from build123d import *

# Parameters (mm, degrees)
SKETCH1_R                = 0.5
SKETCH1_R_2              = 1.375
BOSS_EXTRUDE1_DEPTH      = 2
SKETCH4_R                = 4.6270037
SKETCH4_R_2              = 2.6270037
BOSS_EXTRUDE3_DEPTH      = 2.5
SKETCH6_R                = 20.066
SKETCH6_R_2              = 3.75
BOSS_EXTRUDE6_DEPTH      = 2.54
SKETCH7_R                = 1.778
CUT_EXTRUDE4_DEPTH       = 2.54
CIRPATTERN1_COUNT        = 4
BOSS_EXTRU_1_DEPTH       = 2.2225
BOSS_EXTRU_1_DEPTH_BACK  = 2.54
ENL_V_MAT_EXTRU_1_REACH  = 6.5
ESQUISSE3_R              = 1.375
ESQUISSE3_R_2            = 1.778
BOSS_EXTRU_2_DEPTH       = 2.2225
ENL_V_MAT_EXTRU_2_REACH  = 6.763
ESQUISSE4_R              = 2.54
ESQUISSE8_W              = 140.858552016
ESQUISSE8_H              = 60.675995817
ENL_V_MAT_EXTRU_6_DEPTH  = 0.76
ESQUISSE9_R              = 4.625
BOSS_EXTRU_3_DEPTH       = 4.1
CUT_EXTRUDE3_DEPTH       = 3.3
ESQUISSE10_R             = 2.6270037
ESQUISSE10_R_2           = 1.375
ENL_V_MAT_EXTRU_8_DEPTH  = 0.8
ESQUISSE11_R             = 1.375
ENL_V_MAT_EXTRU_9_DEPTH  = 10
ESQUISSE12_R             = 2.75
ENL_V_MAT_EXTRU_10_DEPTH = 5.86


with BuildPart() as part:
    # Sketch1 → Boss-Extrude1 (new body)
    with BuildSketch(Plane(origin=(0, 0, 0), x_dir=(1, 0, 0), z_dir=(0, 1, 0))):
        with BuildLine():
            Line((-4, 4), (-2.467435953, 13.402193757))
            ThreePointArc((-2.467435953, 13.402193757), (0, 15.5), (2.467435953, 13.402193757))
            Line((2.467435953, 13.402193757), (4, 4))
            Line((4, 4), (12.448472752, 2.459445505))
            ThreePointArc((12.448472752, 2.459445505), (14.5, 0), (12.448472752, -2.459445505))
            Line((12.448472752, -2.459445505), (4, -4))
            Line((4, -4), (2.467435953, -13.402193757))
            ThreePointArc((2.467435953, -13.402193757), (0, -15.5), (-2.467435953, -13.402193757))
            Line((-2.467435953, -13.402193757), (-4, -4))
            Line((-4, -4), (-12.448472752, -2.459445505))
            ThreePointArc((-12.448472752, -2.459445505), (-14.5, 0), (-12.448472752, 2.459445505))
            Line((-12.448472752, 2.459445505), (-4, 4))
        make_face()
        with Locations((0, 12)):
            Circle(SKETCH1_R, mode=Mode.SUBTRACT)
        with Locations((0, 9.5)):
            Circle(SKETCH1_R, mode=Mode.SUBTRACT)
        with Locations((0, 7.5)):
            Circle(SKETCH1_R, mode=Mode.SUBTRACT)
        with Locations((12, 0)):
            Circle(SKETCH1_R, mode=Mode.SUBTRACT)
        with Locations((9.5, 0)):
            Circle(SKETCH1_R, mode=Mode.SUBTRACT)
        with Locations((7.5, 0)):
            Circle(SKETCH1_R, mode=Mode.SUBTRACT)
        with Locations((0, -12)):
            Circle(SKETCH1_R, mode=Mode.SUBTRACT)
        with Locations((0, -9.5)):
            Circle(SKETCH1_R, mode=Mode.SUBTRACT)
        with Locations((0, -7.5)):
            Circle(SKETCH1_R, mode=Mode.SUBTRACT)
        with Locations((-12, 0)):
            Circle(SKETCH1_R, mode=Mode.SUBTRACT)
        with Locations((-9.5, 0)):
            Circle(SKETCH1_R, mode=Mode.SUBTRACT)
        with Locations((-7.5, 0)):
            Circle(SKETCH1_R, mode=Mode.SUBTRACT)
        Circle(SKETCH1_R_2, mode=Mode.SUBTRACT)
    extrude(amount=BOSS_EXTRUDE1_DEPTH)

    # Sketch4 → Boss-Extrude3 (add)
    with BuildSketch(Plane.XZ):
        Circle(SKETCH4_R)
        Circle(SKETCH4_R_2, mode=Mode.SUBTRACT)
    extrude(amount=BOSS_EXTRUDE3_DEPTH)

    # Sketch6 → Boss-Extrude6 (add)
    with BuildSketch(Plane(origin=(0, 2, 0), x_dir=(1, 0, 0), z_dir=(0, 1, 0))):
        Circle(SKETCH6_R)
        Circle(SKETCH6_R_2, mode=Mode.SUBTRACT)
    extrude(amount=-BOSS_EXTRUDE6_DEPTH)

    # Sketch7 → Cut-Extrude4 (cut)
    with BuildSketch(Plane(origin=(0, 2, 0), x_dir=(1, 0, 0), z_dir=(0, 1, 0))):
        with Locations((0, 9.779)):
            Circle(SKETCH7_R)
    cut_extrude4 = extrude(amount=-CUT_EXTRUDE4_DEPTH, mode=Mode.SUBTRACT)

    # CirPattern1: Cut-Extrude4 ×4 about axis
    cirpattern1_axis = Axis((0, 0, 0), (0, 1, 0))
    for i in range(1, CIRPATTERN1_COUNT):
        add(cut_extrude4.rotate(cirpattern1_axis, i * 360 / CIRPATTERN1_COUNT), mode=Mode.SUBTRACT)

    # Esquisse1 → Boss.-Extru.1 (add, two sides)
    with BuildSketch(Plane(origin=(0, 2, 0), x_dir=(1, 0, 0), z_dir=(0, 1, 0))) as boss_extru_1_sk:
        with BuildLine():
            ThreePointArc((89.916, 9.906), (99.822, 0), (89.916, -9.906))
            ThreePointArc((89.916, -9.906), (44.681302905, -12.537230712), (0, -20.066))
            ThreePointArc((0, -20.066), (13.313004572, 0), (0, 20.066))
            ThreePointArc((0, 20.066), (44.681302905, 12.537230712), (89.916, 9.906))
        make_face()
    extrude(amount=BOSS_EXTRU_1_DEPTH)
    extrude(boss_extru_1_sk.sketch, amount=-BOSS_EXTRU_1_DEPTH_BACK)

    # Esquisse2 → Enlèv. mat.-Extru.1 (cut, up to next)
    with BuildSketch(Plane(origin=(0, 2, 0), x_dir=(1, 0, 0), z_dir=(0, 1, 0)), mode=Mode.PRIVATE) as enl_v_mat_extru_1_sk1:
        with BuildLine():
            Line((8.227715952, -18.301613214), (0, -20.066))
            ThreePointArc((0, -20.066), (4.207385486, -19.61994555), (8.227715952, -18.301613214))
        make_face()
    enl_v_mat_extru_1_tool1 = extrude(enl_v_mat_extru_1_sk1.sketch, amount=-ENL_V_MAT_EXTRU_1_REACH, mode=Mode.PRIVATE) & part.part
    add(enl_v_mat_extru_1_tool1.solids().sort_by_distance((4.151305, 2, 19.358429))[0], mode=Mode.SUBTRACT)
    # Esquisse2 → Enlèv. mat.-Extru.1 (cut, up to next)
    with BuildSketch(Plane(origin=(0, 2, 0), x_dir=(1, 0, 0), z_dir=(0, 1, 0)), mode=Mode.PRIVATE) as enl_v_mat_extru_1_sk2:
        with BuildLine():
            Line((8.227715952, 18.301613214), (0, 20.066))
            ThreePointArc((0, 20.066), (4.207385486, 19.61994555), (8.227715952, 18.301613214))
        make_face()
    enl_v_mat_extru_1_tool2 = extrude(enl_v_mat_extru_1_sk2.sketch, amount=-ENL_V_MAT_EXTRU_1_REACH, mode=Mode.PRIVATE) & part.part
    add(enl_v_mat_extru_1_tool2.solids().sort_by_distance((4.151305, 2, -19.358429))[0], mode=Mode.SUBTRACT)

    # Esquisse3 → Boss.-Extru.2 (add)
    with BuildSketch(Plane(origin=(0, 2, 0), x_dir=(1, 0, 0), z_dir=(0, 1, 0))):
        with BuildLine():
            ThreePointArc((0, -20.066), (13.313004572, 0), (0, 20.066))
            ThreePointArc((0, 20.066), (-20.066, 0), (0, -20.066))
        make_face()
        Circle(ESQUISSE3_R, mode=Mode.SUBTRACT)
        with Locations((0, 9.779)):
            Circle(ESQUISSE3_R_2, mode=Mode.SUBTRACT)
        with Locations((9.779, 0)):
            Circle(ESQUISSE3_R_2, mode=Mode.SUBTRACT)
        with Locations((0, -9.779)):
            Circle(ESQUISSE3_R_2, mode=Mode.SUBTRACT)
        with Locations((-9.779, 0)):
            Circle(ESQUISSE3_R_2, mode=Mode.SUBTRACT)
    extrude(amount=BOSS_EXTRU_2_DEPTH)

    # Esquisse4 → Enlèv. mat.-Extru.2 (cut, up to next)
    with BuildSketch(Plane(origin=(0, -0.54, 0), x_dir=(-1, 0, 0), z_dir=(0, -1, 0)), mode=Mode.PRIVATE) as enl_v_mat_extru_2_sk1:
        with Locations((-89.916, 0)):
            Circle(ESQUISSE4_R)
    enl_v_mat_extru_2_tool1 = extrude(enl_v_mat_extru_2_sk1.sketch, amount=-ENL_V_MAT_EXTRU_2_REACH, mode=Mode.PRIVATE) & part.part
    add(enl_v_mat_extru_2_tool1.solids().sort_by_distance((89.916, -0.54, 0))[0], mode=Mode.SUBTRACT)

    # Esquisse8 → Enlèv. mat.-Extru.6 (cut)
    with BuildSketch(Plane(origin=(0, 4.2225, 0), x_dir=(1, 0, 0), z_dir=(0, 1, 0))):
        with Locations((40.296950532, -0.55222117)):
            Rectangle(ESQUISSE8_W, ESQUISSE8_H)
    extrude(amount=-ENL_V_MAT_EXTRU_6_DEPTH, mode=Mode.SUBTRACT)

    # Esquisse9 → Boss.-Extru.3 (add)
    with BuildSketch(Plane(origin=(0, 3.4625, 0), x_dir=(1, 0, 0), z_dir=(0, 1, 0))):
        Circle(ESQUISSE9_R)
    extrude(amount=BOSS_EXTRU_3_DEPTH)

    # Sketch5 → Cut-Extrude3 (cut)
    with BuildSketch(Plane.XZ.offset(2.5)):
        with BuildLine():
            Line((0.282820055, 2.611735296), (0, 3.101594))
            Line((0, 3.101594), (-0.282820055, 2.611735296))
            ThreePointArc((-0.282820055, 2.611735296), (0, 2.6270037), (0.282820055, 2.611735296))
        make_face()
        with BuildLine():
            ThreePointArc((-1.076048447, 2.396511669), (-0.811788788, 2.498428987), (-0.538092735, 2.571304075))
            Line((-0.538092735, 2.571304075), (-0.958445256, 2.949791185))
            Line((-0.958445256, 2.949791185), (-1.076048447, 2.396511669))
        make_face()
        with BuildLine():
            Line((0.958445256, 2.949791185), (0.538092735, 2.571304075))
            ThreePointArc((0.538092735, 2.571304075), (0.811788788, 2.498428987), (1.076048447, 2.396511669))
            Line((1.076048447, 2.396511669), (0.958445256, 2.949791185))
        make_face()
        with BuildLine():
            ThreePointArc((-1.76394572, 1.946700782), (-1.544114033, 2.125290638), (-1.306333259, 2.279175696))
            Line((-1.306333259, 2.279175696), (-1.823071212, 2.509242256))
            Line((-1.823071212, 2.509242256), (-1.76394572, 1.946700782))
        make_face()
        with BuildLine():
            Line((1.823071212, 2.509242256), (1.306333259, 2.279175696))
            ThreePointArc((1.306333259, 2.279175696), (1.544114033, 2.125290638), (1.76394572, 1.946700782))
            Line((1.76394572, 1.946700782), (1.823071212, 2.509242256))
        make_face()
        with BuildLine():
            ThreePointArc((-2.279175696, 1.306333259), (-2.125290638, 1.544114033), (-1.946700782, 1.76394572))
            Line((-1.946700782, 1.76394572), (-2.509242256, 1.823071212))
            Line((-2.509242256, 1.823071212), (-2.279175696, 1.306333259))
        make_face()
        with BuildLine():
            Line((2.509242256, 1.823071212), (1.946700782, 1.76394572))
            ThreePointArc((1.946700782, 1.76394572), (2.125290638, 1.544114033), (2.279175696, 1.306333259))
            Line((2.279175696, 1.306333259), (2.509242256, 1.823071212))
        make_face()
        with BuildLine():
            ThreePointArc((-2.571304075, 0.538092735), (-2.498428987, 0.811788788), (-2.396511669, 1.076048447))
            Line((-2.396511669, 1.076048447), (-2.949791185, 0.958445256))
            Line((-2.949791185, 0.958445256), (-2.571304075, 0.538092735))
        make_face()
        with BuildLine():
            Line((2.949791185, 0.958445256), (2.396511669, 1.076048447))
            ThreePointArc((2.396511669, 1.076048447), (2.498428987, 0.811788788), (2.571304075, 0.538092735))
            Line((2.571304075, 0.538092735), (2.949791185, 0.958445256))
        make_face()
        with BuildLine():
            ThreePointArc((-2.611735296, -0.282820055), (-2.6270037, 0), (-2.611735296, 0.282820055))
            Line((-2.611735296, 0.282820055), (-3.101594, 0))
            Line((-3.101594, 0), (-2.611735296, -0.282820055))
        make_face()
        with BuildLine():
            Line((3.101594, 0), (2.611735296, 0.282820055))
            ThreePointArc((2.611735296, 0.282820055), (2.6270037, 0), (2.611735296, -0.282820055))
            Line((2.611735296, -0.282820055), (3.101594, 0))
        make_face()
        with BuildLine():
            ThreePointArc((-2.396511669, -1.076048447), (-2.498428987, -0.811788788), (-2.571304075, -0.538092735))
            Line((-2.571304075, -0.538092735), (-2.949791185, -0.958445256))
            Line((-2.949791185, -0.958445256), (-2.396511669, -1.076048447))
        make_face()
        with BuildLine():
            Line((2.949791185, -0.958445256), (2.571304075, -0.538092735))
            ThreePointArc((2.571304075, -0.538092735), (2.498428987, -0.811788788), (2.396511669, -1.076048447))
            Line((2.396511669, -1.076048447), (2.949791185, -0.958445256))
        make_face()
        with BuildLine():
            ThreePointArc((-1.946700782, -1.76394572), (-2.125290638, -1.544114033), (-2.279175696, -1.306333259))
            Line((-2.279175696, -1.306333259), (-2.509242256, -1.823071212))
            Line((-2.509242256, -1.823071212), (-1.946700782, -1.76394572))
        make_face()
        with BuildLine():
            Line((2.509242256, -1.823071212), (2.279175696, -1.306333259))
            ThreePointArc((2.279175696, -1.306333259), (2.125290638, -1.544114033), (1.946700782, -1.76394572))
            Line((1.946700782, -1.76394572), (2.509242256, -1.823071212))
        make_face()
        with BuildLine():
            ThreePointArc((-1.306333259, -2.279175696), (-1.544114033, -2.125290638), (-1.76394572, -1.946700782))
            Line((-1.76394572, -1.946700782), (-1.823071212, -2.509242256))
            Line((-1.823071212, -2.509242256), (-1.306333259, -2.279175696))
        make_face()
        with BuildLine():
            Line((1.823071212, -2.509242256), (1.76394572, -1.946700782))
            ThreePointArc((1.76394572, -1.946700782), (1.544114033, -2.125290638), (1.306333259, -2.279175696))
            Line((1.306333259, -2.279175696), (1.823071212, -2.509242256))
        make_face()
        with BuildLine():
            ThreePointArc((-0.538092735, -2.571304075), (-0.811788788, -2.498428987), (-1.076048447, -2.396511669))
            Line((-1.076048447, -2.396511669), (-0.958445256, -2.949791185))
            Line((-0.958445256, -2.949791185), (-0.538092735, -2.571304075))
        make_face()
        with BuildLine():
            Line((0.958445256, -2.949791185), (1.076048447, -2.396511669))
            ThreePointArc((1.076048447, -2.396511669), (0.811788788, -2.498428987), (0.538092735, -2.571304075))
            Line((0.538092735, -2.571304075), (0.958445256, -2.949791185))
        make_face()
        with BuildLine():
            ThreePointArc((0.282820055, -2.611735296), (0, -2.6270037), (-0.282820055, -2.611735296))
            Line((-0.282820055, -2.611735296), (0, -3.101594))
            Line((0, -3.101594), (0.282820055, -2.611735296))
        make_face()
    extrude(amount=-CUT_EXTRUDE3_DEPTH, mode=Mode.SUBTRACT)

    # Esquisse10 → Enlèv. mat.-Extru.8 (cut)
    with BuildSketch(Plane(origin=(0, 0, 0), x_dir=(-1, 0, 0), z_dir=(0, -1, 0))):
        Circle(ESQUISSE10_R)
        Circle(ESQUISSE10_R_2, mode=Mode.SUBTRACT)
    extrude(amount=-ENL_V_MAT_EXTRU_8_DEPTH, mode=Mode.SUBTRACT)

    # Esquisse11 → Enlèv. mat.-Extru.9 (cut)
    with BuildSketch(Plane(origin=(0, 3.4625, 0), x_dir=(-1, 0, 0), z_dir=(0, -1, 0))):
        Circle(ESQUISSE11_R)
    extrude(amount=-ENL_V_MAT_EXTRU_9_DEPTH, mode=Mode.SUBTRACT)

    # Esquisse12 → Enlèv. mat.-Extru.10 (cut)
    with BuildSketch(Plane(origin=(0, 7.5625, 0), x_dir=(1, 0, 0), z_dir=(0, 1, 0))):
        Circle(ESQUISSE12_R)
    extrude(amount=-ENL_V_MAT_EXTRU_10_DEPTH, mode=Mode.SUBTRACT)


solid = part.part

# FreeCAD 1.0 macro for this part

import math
import FreeCAD as App
import Part
import Sketcher
Q = App.Units.Quantity

doc = App.newDocument("Part")
body = doc.addObject("PartDesign::Body", "Body")

# Sketch on XZ plane
sketch1 = body.newObject("Sketcher::SketchObject", "Sketch")
sketch1.AttachmentSupport = (doc.getObject("XZ_Plane"), [""])
sketch1.MapMode = "FlatFace"
sketch1.addGeometry([
    Part.LineSegment(App.Vector(-2.467436, -13.402194, 0), App.Vector(-4, -4, 0)),  # 0
    Part.LineSegment(App.Vector(-4, -4, 0), App.Vector(-12.448473, -2.459446, 0)),  # 1
    Part.ArcOfCircle(Part.Circle(App.Vector(-12, 0, 0), App.Vector(0, 0, 1), 2.5), math.radians(100.334179), math.radians(259.665821)),  # 2
    Part.LineSegment(App.Vector(-12.448473, 2.459446, 0), App.Vector(-4, 4, 0)),  # 3
    Part.LineSegment(App.Vector(-4, 4, 0), App.Vector(-2.467436, 13.402194, 0)),  # 4
    Part.ArcOfCircle(Part.Circle(App.Vector(0, 13, 0), App.Vector(0, 0, 1), 2.5), math.radians(9.257833), math.radians(170.742167)),  # 5
    Part.LineSegment(App.Vector(2.467436, 13.402194, 0), App.Vector(4, 4, 0)),  # 6
    Part.LineSegment(App.Vector(4, 4, 0), App.Vector(12.448473, 2.459446, 0)),  # 7
    Part.ArcOfCircle(Part.Circle(App.Vector(12, 0, 0), App.Vector(0, 0, 1), 2.5), math.radians(-79.665821), math.radians(79.665821)),  # 8
    Part.LineSegment(App.Vector(12.448473, -2.459446, 0), App.Vector(4, -4, 0)),  # 9
    Part.LineSegment(App.Vector(4, -4, 0), App.Vector(2.467436, -13.402194, 0)),  # 10
    Part.ArcOfCircle(Part.Circle(App.Vector(0, -13, 0), App.Vector(0, 0, 1), 2.5), math.radians(-170.742167), math.radians(-9.257833)),  # 11
    Part.Circle(App.Vector(0, 12, 0), App.Vector(0, 0, 1), 0.5),  # 12
    Part.Circle(App.Vector(0, 9.5, 0), App.Vector(0, 0, 1), 0.5),  # 13
    Part.Circle(App.Vector(0, 7.5, 0), App.Vector(0, 0, 1), 0.5),  # 14
    Part.Circle(App.Vector(12, 0, 0), App.Vector(0, 0, 1), 0.5),  # 15
    Part.Circle(App.Vector(9.5, 0, 0), App.Vector(0, 0, 1), 0.5),  # 16
    Part.Circle(App.Vector(7.5, 0, 0), App.Vector(0, 0, 1), 0.5),  # 17
    Part.Circle(App.Vector(0, 0, 0), App.Vector(0, 0, 1), 1.375),  # 18
    Part.Circle(App.Vector(-7.5, 0, 0), App.Vector(0, 0, 1), 0.5),  # 19
    Part.Circle(App.Vector(-9.5, 0, 0), App.Vector(0, 0, 1), 0.5),  # 20
    Part.Circle(App.Vector(-12, 0, 0), App.Vector(0, 0, 1), 0.5),  # 21
    Part.Circle(App.Vector(0, -7.5, 0), App.Vector(0, 0, 1), 0.5),  # 22
    Part.Circle(App.Vector(0, -9.5, 0), App.Vector(0, 0, 1), 0.5),  # 23
    Part.Circle(App.Vector(0, -12, 0), App.Vector(0, 0, 1), 0.5),  # 24
], False)
sketch1.addConstraint([
    Sketcher.Constraint("Coincident", 0, 2, 1, 1),
    Sketcher.Constraint("Tangent", 1, 2, 2, 2),
    Sketcher.Constraint("Tangent", 2, 1, 3, 1),
    Sketcher.Constraint("Coincident", 3, 2, 4, 1),
    Sketcher.Constraint("Tangent", 4, 2, 5, 2),
    Sketcher.Constraint("Tangent", 5, 1, 6, 1),
    Sketcher.Constraint("Coincident", 6, 2, 7, 1),
    Sketcher.Constraint("Tangent", 7, 2, 8, 2),
    Sketcher.Constraint("Tangent", 8, 1, 9, 1),
    Sketcher.Constraint("Coincident", 9, 2, 10, 1),
    Sketcher.Constraint("Tangent", 10, 2, 11, 2),
    Sketcher.Constraint("Tangent", 11, 1, 0, 1),
    Sketcher.Constraint("Coincident", 18, 3, -1, 1),
    Sketcher.Constraint("Coincident", 15, 3, 8, 3),
    Sketcher.Constraint("Coincident", 21, 3, 2, 3),
    Sketcher.Constraint("Equal", 2, 5),
    Sketcher.Constraint("Equal", 5, 8),
    Sketcher.Constraint("Equal", 8, 11),
    Sketcher.Constraint("Equal", 12, 13),
    Sketcher.Constraint("Equal", 13, 14),
    Sketcher.Constraint("Equal", 14, 15),
    Sketcher.Constraint("Equal", 15, 16),
    Sketcher.Constraint("Equal", 16, 17),
    Sketcher.Constraint("Equal", 17, 19),
    Sketcher.Constraint("Equal", 19, 20),
    Sketcher.Constraint("Equal", 20, 21),
    Sketcher.Constraint("Equal", 21, 22),
    Sketcher.Constraint("Equal", 22, 23),
    Sketcher.Constraint("Equal", 23, 24),
    Sketcher.Constraint("Symmetric", 2, 3, 8, 3, -1, 1),
    Sketcher.Constraint("Symmetric", 5, 3, 11, 3, -1, 1),
    Sketcher.Constraint("Symmetric", 17, 3, 19, 3, -1, 1),
    Sketcher.Constraint("Symmetric", 16, 3, 20, 3, -1, 1),
    Sketcher.Constraint("Symmetric", 14, 3, 22, 3, -1, 1),
    Sketcher.Constraint("Symmetric", 13, 3, 23, 3, -1, 1),
    Sketcher.Constraint("Symmetric", 12, 3, 24, 3, -1, 1),
    Sketcher.Constraint("Symmetric", 0, 2, 6, 2, -1, 1),
    Sketcher.Constraint("Symmetric", 3, 2, 9, 2, -1, 1),
    Sketcher.Constraint("Symmetric", 4, 2, 5, 1, -2),
    Sketcher.Constraint("Symmetric", 2, 1, 7, 2, -2),
    Sketcher.Constraint("PointOnObject", 12, 3, -2),
    Sketcher.Constraint("PointOnObject", 13, 3, -2),
    Sketcher.Constraint("PointOnObject", 14, 3, -2),
    Sketcher.Constraint("PointOnObject", 16, 3, -1),
    Sketcher.Constraint("PointOnObject", 17, 3, -1),
    Sketcher.Constraint("Diameter", 12, 1.0),
    Sketcher.Constraint("Radius", 2, 2.5),
    Sketcher.Constraint("Diameter", 18, 2.75),
    Sketcher.Constraint("DistanceX", 2, 3, -1, 1, 12.0),
    Sketcher.Constraint("DistanceY", -1, 1, 5, 3, 13.0),
    Sketcher.Constraint("DistanceY", -1, 1, 12, 3, 12.0),
    Sketcher.Constraint("DistanceX", 0, 2, -1, 1, 4.0),
    Sketcher.Constraint("DistanceY", 0, 2, -1, 1, 4.0),
    Sketcher.Constraint("DistanceY", 14, 3, 13, 3, 2.0),
    Sketcher.Constraint("DistanceX", 17, 3, 16, 3, 2.0),
    Sketcher.Constraint("DistanceY", -1, 1, 13, 3, 9.5),
    Sketcher.Constraint("DistanceX", -1, 1, 16, 3, 9.5),
])
pad1 = body.newObject("PartDesign::Pad", "Pad")
pad1.Profile = sketch1
pad1.Length = 2
pad1.Reversed = True

# Sketch on XZ plane
sketch2 = body.newObject("Sketcher::SketchObject", "Sketch001")
sketch2.AttachmentSupport = (doc.getObject("XZ_Plane"), [""])
sketch2.MapMode = "FlatFace"
sketch2.addGeometry([
    Part.Circle(App.Vector(0, 0, 0), App.Vector(0, 0, 1), 4.627004),
    Part.Circle(App.Vector(0, 0, 0), App.Vector(0, 0, 1), 2.627004),
], False)
sketch2.addConstraint([
    Sketcher.Constraint("Coincident", 0, 3, -1, 1),
    Sketcher.Constraint("Coincident", 1, 3, -1, 1),
    Sketcher.Constraint("Diameter", 0, 9.254007),
    Sketcher.Constraint("Diameter", 1, 5.254007),
])
pad2 = body.newObject("PartDesign::Pad", "Pad001")
pad2.Profile = sketch2
pad2.Length = 2.5

# Sketch on XZ plane
sketch3 = body.newObject("Sketcher::SketchObject", "Sketch002")
sketch3.AttachmentSupport = (doc.getObject("XZ_Plane"), [""])
sketch3.MapMode = "FlatFace"
sketch3.AttachmentOffset = App.Placement(App.Vector(0, 0, -2), App.Rotation())
sketch3.addGeometry([
    Part.Circle(App.Vector(0, 0, 0), App.Vector(0, 0, 1), 20.066),
    Part.Circle(App.Vector(0, 0, 0), App.Vector(0, 0, 1), 3.75),
], False)
sketch3.addConstraint([
    Sketcher.Constraint("Coincident", 0, 3, -1, 1),
    Sketcher.Constraint("Coincident", 1, 3, -1, 1),
    Sketcher.Constraint("Diameter", 1, 7.5),
    Sketcher.Constraint("Diameter", 0, 40.132),
])
pad3 = body.newObject("PartDesign::Pad", "Pad002")
pad3.Profile = sketch3
pad3.Length = 2.54

# Sketch on XZ plane
sketch4 = body.newObject("Sketcher::SketchObject", "Sketch003")
sketch4.AttachmentSupport = (doc.getObject("XZ_Plane"), [""])
sketch4.MapMode = "FlatFace"
sketch4.AttachmentOffset = App.Placement(App.Vector(0, 0, -2), App.Rotation())
sketch4.addGeometry(Part.Circle(App.Vector(0, -9.779, 0), App.Vector(0, 0, 1), 1.778), False)
sketch4.addConstraint([
    Sketcher.Constraint("PointOnObject", 0, 3, -2),
    Sketcher.Constraint("Diameter", 0, 3.556),
    Sketcher.Constraint("DistanceY", 0, 3, -1, 1, 9.779),
])
pocket1 = body.newObject("PartDesign::Pocket", "Pocket")
pocket1.Profile = sketch4
pocket1.Length = 2.54
pocket1.Reversed = True
doc.recompute()

polarpattern = body.newObject("PartDesign::PolarPattern", "PolarPattern")
polarpattern.Originals = [pocket1]
polarpattern.Axis = (doc.getObject("Y_Axis"), [""])
polarpattern.Angle = 360
polarpattern.Occurrences = 4
body.Tip = polarpattern

# Sketch on XZ plane
sketch5 = body.newObject("Sketcher::SketchObject", "Sketch004")
sketch5.AttachmentSupport = (doc.getObject("XZ_Plane"), [""])
sketch5.MapMode = "FlatFace"
sketch5.AttachmentOffset = App.Placement(App.Vector(0, 0, -2), App.Rotation())
sketch5.addGeometry([
    Part.ArcOfCircle(Part.Circle(App.Vector(89.916, 0, 0), App.Vector(0, 0, 1), 9.906), math.radians(-90), math.radians(90)),
    Part.ArcOfCircle(Part.Circle(App.Vector(91.452595, -426.463166, 0), App.Vector(0, 0, 1), 416.56), math.radians(90.211352), math.radians(102.682159)),
    Part.ArcOfCircle(Part.Circle(App.Vector(-8.465717, 0, 0), App.Vector(0, 0, 1), 21.778722), math.radians(-67.125429), math.radians(67.125429)),
    Part.ArcOfCircle(Part.Circle(App.Vector(91.452595, 426.463166, 0), App.Vector(0, 0, 1), 416.56), math.radians(-102.682159), math.radians(-90.211352)),
], False)
sketch5.addConstraint([
    Sketcher.Constraint("Coincident", 0, 1, 1, 1),
    Sketcher.Constraint("Coincident", 1, 2, 2, 1),
    Sketcher.Constraint("Coincident", 2, 2, 3, 1),
    Sketcher.Constraint("Coincident", 3, 2, 0, 2),
    Sketcher.Constraint("Equal", 1, 3),
    Sketcher.Constraint("Symmetric", 1, 2, 2, 2, -1, 1),
    Sketcher.Constraint("Symmetric", 1, 3, 3, 3, -1),
    Sketcher.Constraint("PointOnObject", 0, 3, -1),
    Sketcher.Constraint("Radius", 1, 416.56),
    Sketcher.Constraint("Radius", 0, 9.906),
    Sketcher.Constraint("Radius", 2, 21.778722),
    Sketcher.Constraint("DistanceY", 3, 2, 2, 2, 10.16),
    Sketcher.Constraint("DistanceX", -1, 1, 0, 3, 89.916),
    Sketcher.Constraint("DistanceX", -1, 1, 0, 1, 89.916),
])
pad4 = body.newObject("PartDesign::Pad", "Pad003")
pad4.Profile = sketch5
pad4.Type = "TwoLengths"
pad4.Length = 2.2225
pad4.Length2 = 2.54
pad4.Reversed = True

# Sketch on XZ plane
sketch6 = body.newObject("Sketcher::SketchObject", "Sketch005")
sketch6.AttachmentSupport = (doc.getObject("XZ_Plane"), [""])
sketch6.MapMode = "FlatFace"
sketch6.AttachmentOffset = App.Placement(App.Vector(0, 0, -2), App.Rotation())
sketch6.addGeometry([
    Part.LineSegment(App.Vector(8.227716, 18.301613, 0), App.Vector(0, 20.066, 0)),
    Part.ArcOfCircle(Part.Circle(App.Vector(0, 0, 0), App.Vector(0, 0, 1), 20.066), math.radians(65.793112), math.radians(90)),
], False)
sketch6.addConstraint([
    Sketcher.Constraint("Coincident", 0, 1, 1, 1),
    Sketcher.Constraint("Coincident", 1, 2, 0, 2),
    Sketcher.Constraint("Coincident", 1, 3, -1, 1),
    Sketcher.Constraint("PointOnObject", 1, 2, -2),
    Sketcher.Constraint("Radius", 1, 20.066),
    Sketcher.Constraint("Distance", 0, 8.414771),
])
pocket2 = body.newObject("PartDesign::Pocket", "Pocket001")
pocket2.Profile = sketch6
pocket2.Type = "UpToFirst"
pocket2.Reversed = True

# Sketch on XZ plane
sketch7 = body.newObject("Sketcher::SketchObject", "Sketch006")
sketch7.AttachmentSupport = (doc.getObject("XZ_Plane"), [""])
sketch7.MapMode = "FlatFace"
sketch7.AttachmentOffset = App.Placement(App.Vector(0, 0, -2), App.Rotation())
sketch7.addGeometry([
    Part.LineSegment(App.Vector(0, -20.066, 0), App.Vector(8.227716, -18.301613, 0)),
    Part.ArcOfCircle(Part.Circle(App.Vector(0, 0, 0), App.Vector(0, 0, 1), 20.066), math.radians(-90), math.radians(-65.793112)),
], False)
sketch7.addConstraint([
    Sketcher.Constraint("Coincident", 0, 1, 1, 1),
    Sketcher.Constraint("Coincident", 1, 2, 0, 2),
    Sketcher.Constraint("Coincident", 1, 3, -1, 1),
    Sketcher.Constraint("PointOnObject", 0, 1, -2),
    Sketcher.Constraint("Radius", 1, 20.066),
    Sketcher.Constraint("Distance", 0, 8.414771),
])
pocket3 = body.newObject("PartDesign::Pocket", "Pocket002")
pocket3.Profile = sketch7
pocket3.Type = "UpToFirst"
pocket3.Reversed = True

# Sketch on XZ plane
sketch8 = body.newObject("Sketcher::SketchObject", "Sketch007")
sketch8.AttachmentSupport = (doc.getObject("XZ_Plane"), [""])
sketch8.MapMode = "FlatFace"
sketch8.AttachmentOffset = App.Placement(App.Vector(0, 0, -2), App.Rotation())
sketch8.addGeometry([
    Part.ArcOfCircle(Part.Circle(App.Vector(-8.465717, 0, 0), App.Vector(0, 0, 1), 21.778722), math.radians(-67.125429), math.radians(67.125429)),  # 0
    Part.ArcOfCircle(Part.Circle(App.Vector(0, 0, 0), App.Vector(0, 0, 1), 20.066), math.radians(90), math.radians(270)),  # 1
    Part.Circle(App.Vector(0, 9.779, 0), App.Vector(0, 0, 1), 1.778),  # 2
    Part.Circle(App.Vector(-9.779, 0, 0), App.Vector(0, 0, 1), 1.778),  # 3
    Part.Circle(App.Vector(0, 0, 0), App.Vector(0, 0, 1), 1.375),  # 4
    Part.Circle(App.Vector(9.779, 0, 0), App.Vector(0, 0, 1), 1.778),  # 5
    Part.Circle(App.Vector(0, -9.779, 0), App.Vector(0, 0, 1), 1.778),  # 6
], False)
sketch8.addConstraint([
    Sketcher.Constraint("Coincident", 0, 1, 1, 2),
    Sketcher.Constraint("Coincident", 1, 1, 0, 2),
    Sketcher.Constraint("Coincident", 1, 3, -1, 1),
    Sketcher.Constraint("Coincident", 4, 3, -1, 1),
    Sketcher.Constraint("Equal", 2, 3),
    Sketcher.Constraint("Equal", 3, 5),
    Sketcher.Constraint("Equal", 5, 6),
    Sketcher.Constraint("Symmetric", 3, 3, 5, 3, -1, 1),
    Sketcher.Constraint("Symmetric", 2, 3, 6, 3, -1, 1),
    Sketcher.Constraint("PointOnObject", 0, 3, -1),
    Sketcher.Constraint("PointOnObject", 2, 3, -2),
    Sketcher.Constraint("PointOnObject", 3, 3, -1),
    Sketcher.Constraint("PointOnObject", 0, 1, -2),
    Sketcher.Constraint("Diameter", 4, 2.75),
    Sketcher.Constraint("Diameter", 2, 3.556),
    Sketcher.Constraint("Radius", 1, 20.066),
    Sketcher.Constraint("Radius", 0, 21.778722),
    Sketcher.Constraint("DistanceY", -1, 1, 2, 3, 9.779),
    Sketcher.Constraint("DistanceX", 3, 3, -1, 1, 9.779),
])
pad5 = body.newObject("PartDesign::Pad", "Pad004")
pad5.Profile = sketch8
pad5.Length = 2.2225
pad5.Reversed = True

# Sketch on XZ plane
sketch9 = body.newObject("Sketcher::SketchObject", "Sketch008")
sketch9.AttachmentSupport = (doc.getObject("XZ_Plane"), [""])
sketch9.MapMode = "FlatFace"
sketch9.AttachmentOffset = App.Placement(App.Vector(0, 0, 0.54), App.Rotation())
sketch9.addGeometry(Part.Circle(App.Vector(89.916, 0, 0), App.Vector(0, 0, 1), 2.54), False)
sketch9.addConstraint([
    Sketcher.Constraint("PointOnObject", 0, 3, -1),
    Sketcher.Constraint("Diameter", 0, 5.08),
    Sketcher.Constraint("DistanceX", -1, 1, 0, 3, 89.916),
])
pocket4 = body.newObject("PartDesign::Pocket", "Pocket003")
pocket4.Profile = sketch9
pocket4.Type = "UpToFirst"

# Sketch on XZ plane
sketch10 = body.newObject("Sketcher::SketchObject", "Sketch009")
sketch10.AttachmentSupport = (doc.getObject("XZ_Plane"), [""])
sketch10.MapMode = "FlatFace"
sketch10.AttachmentOffset = App.Placement(App.Vector(0, 0, -4.2225), App.Rotation())
sketch10.addGeometry([
    Part.LineSegment(App.Vector(-30.132325, -29.785777, 0), App.Vector(-30.132325, 30.890219, 0)),
    Part.LineSegment(App.Vector(-30.132325, 30.890219, 0), App.Vector(110.726227, 30.890219, 0)),
    Part.LineSegment(App.Vector(110.726227, 30.890219, 0), App.Vector(110.726227, -29.785777, 0)),
    Part.LineSegment(App.Vector(110.726227, -29.785777, 0), App.Vector(-30.132325, -29.785777, 0)),
], False)
sketch10.addConstraint([
    Sketcher.Constraint("Coincident", 0, 2, 1, 1),
    Sketcher.Constraint("Coincident", 1, 2, 2, 1),
    Sketcher.Constraint("Coincident", 2, 2, 3, 1),
    Sketcher.Constraint("Coincident", 3, 2, 0, 1),
    Sketcher.Constraint("Vertical", 0),
    Sketcher.Constraint("Horizontal", 1),
    Sketcher.Constraint("Vertical", 2),
    Sketcher.Constraint("Horizontal", 3),
    Sketcher.Constraint("DistanceX", 1, 1, 1, 2, 140.858552),
    Sketcher.Constraint("DistanceY", 0, 1, 0, 2, 60.675996),
    Sketcher.Constraint("DistanceY", -1, 1, 0, 2, 30.890219),
    Sketcher.Constraint("DistanceX", 0, 2, -1, 1, 30.132325),
])
pocket5 = body.newObject("PartDesign::Pocket", "Pocket004")
pocket5.Profile = sketch10
pocket5.Length = 0.76
pocket5.Reversed = True

# Sketch on XZ plane
sketch11 = body.newObject("Sketcher::SketchObject", "Sketch010")
sketch11.AttachmentSupport = (doc.getObject("XZ_Plane"), [""])
sketch11.MapMode = "FlatFace"
sketch11.AttachmentOffset = App.Placement(App.Vector(0, 0, -3.4625), App.Rotation())
sketch11.addGeometry(Part.Circle(App.Vector(0, 0, 0), App.Vector(0, 0, 1), 4.625), False)
sketch11.addConstraint([
    Sketcher.Constraint("Coincident", 0, 3, -1, 1),
    Sketcher.Constraint("Diameter", 0, 9.25),
])
pad6 = body.newObject("PartDesign::Pad", "Pad005")
pad6.Profile = sketch11
pad6.Length = 4.1
pad6.Reversed = True

# Sketch on XZ plane
sketch12 = body.newObject("Sketcher::SketchObject", "Sketch011")
sketch12.AttachmentSupport = (doc.getObject("XZ_Plane"), [""])
sketch12.MapMode = "FlatFace"
sketch12.AttachmentOffset = App.Placement(App.Vector(0, 0, 2.5), App.Rotation())
sketch12.addGeometry([
    Part.LineSegment(App.Vector(0.28282, 2.611735, 0), App.Vector(0, 3.101594, 0)),  # 0
    Part.LineSegment(App.Vector(0, 3.101594, 0), App.Vector(-0.28282, 2.611735, 0)),  # 1
    Part.ArcOfCircle(Part.Circle(App.Vector(0, 0, 0), App.Vector(0, 0, 1), 2.627004), math.radians(83.819627), math.radians(96.180373)),  # 2
    Part.ArcOfCircle(Part.Circle(App.Vector(0, 0, 0), App.Vector(0, 0, 1), 2.627004), math.radians(101.819627), math.radians(114.180373)),  # 3
    Part.LineSegment(App.Vector(-0.538093, 2.571304, 0), App.Vector(-0.958445, 2.949791, 0)),  # 4
    Part.LineSegment(App.Vector(-0.958445, 2.949791, 0), App.Vector(-1.076048, 2.396512, 0)),  # 5
    Part.LineSegment(App.Vector(0.958445, 2.949791, 0), App.Vector(0.538093, 2.571304, 0)),  # 6
    Part.ArcOfCircle(Part.Circle(App.Vector(0, 0, 0), App.Vector(0, 0, 1), 2.627004), math.radians(65.819627), math.radians(78.180373)),  # 7
    Part.LineSegment(App.Vector(1.076048, 2.396512, 0), App.Vector(0.958445, 2.949791, 0)),  # 8
    Part.ArcOfCircle(Part.Circle(App.Vector(0, 0, 0), App.Vector(0, 0, 1), 2.627004), math.radians(119.819627), math.radians(132.180373)),  # 9
    Part.LineSegment(App.Vector(-1.306333, 2.279176, 0), App.Vector(-1.823071, 2.509242, 0)),  # 10
    Part.LineSegment(App.Vector(-1.823071, 2.509242, 0), App.Vector(-1.763946, 1.946701, 0)),  # 11
    Part.LineSegment(App.Vector(1.823071, 2.509242, 0), App.Vector(1.306333, 2.279176, 0)),  # 12
    Part.ArcOfCircle(Part.Circle(App.Vector(0, 0, 0), App.Vector(0, 0, 1), 2.627004), math.radians(47.819627), math.radians(60.180373)),  # 13
    Part.LineSegment(App.Vector(1.763946, 1.946701, 0), App.Vector(1.823071, 2.509242, 0)),  # 14
    Part.ArcOfCircle(Part.Circle(App.Vector(0, 0, 0), App.Vector(0, 0, 1), 2.627004), math.radians(137.819627), math.radians(150.180373)),  # 15
    Part.LineSegment(App.Vector(-1.946701, 1.763946, 0), App.Vector(-2.509242, 1.823071, 0)),  # 16
    Part.LineSegment(App.Vector(-2.509242, 1.823071, 0), App.Vector(-2.279176, 1.306333, 0)),  # 17
    Part.LineSegment(App.Vector(2.509242, 1.823071, 0), App.Vector(1.946701, 1.763946, 0)),  # 18
    Part.ArcOfCircle(Part.Circle(App.Vector(0, 0, 0), App.Vector(0, 0, 1), 2.627004), math.radians(29.819627), math.radians(42.180373)),  # 19
    Part.LineSegment(App.Vector(2.279176, 1.306333, 0), App.Vector(2.509242, 1.823071, 0)),  # 20
    Part.ArcOfCircle(Part.Circle(App.Vector(0, 0, 0), App.Vector(0, 0, 1), 2.627004), math.radians(155.819627), math.radians(168.180373)),  # 21
    Part.LineSegment(App.Vector(-2.396512, 1.076048, 0), App.Vector(-2.949791, 0.958445, 0)),  # 22
    Part.LineSegment(App.Vector(-2.949791, 0.958445, 0), App.Vector(-2.571304, 0.538093, 0)),  # 23
    Part.LineSegment(App.Vector(2.949791, 0.958445, 0), App.Vector(2.396512, 1.076048, 0)),  # 24
    Part.ArcOfCircle(Part.Circle(App.Vector(0, 0, 0), App.Vector(0, 0, 1), 2.627004), math.radians(11.819627), math.radians(24.180373)),  # 25
    Part.LineSegment(App.Vector(2.571304, 0.538093, 0), App.Vector(2.949791, 0.958445, 0)),  # 26
    Part.ArcOfCircle(Part.Circle(App.Vector(0, 0, 0), App.Vector(0, 0, 1), 2.627004), math.radians(173.819627), math.radians(186.180373)),  # 27
    Part.LineSegment(App.Vector(-2.611735, 0.28282, 0), App.Vector(-3.101594, 0, 0)),  # 28
    Part.LineSegment(App.Vector(-3.101594, 0, 0), App.Vector(-2.611735, -0.28282, 0)),  # 29
    Part.LineSegment(App.Vector(3.101594, 0, 0), App.Vector(2.611735, 0.28282, 0)),  # 30
    Part.ArcOfCircle(Part.Circle(App.Vector(0, 0, 0), App.Vector(0, 0, 1), 2.627004), math.radians(-6.180373), math.radians(6.180373)),  # 31
    Part.LineSegment(App.Vector(2.611735, -0.28282, 0), App.Vector(3.101594, 0, 0)),  # 32
    Part.ArcOfCircle(Part.Circle(App.Vector(0, 0, 0), App.Vector(0, 0, 1), 2.627004), math.radians(-168.180373), math.radians(-155.819627)),  # 33
    Part.LineSegment(App.Vector(-2.571304, -0.538093, 0), App.Vector(-2.949791, -0.958445, 0)),  # 34
    Part.LineSegment(App.Vector(-2.949791, -0.958445, 0), App.Vector(-2.396512, -1.076048, 0)),  # 35
    Part.LineSegment(App.Vector(2.949791, -0.958445, 0), App.Vector(2.571304, -0.538093, 0)),  # 36
    Part.ArcOfCircle(Part.Circle(App.Vector(0, 0, 0), App.Vector(0, 0, 1), 2.627004), math.radians(-24.180373), math.radians(-11.819627)),  # 37
    Part.LineSegment(App.Vector(2.396512, -1.076048, 0), App.Vector(2.949791, -0.958445, 0)),  # 38
    Part.ArcOfCircle(Part.Circle(App.Vector(0, 0, 0), App.Vector(0, 0, 1), 2.627004), math.radians(-150.180373), math.radians(-137.819627)),  # 39
    Part.LineSegment(App.Vector(-2.279176, -1.306333, 0), App.Vector(-2.509242, -1.823071, 0)),  # 40
    Part.LineSegment(App.Vector(-2.509242, -1.823071, 0), App.Vector(-1.946701, -1.763946, 0)),  # 41
    Part.LineSegment(App.Vector(2.509242, -1.823071, 0), App.Vector(2.279176, -1.306333, 0)),  # 42
    Part.ArcOfCircle(Part.Circle(App.Vector(0, 0, 0), App.Vector(0, 0, 1), 2.627004), math.radians(-42.180373), math.radians(-29.819627)),  # 43
    Part.LineSegment(App.Vector(1.946701, -1.763946, 0), App.Vector(2.509242, -1.823071, 0)),  # 44
    Part.ArcOfCircle(Part.Circle(App.Vector(0, 0, 0), App.Vector(0, 0, 1), 2.627004), math.radians(-132.180373), math.radians(-119.819627)),  # 45
    Part.LineSegment(App.Vector(-1.763946, -1.946701, 0), App.Vector(-1.823071, -2.509242, 0)),  # 46
    Part.LineSegment(App.Vector(-1.823071, -2.509242, 0), App.Vector(-1.306333, -2.279176, 0)),  # 47
    Part.LineSegment(App.Vector(1.823071, -2.509242, 0), App.Vector(1.763946, -1.946701, 0)),  # 48
    Part.ArcOfCircle(Part.Circle(App.Vector(0, 0, 0), App.Vector(0, 0, 1), 2.627004), math.radians(-60.180373), math.radians(-47.819627)),  # 49
    Part.LineSegment(App.Vector(1.306333, -2.279176, 0), App.Vector(1.823071, -2.509242, 0)),  # 50
    Part.ArcOfCircle(Part.Circle(App.Vector(0, 0, 0), App.Vector(0, 0, 1), 2.627004), math.radians(-114.180373), math.radians(-101.819627)),  # 51
    Part.LineSegment(App.Vector(-1.076048, -2.396512, 0), App.Vector(-0.958445, -2.949791, 0)),  # 52
    Part.LineSegment(App.Vector(-0.958445, -2.949791, 0), App.Vector(-0.538093, -2.571304, 0)),  # 53
    Part.LineSegment(App.Vector(0.958445, -2.949791, 0), App.Vector(1.076048, -2.396512, 0)),  # 54
    Part.ArcOfCircle(Part.Circle(App.Vector(0, 0, 0), App.Vector(0, 0, 1), 2.627004), math.radians(-78.180373), math.radians(-65.819627)),  # 55
    Part.LineSegment(App.Vector(0.538093, -2.571304, 0), App.Vector(0.958445, -2.949791, 0)),  # 56
    Part.ArcOfCircle(Part.Circle(App.Vector(0, 0, 0), App.Vector(0, 0, 1), 2.627004), math.radians(-96.180373), math.radians(-83.819627)),  # 57
    Part.LineSegment(App.Vector(-0.28282, -2.611735, 0), App.Vector(0, -3.101594, 0)),  # 58
    Part.LineSegment(App.Vector(0, -3.101594, 0), App.Vector(0.28282, -2.611735, 0)),  # 59
], False)
sketch12.addConstraint([
    Sketcher.Constraint("Coincident", 0, 2, 1, 1),
    Sketcher.Constraint("Coincident", 1, 2, 2, 2),
    Sketcher.Constraint("Coincident", 2, 1, 0, 1),
    Sketcher.Constraint("Coincident", 3, 1, 4, 1),
    Sketcher.Constraint("Coincident", 4, 2, 5, 1),
    Sketcher.Constraint("Coincident", 5, 2, 3, 2),
    Sketcher.Constraint("Coincident", 6, 2, 7, 2),
    Sketcher.Constraint("Coincident", 7, 1, 8, 1),
    Sketcher.Constraint("Coincident", 8, 2, 6, 1),
    Sketcher.Constraint("Coincident", 9, 1, 10, 1),
    Sketcher.Constraint("Coincident", 10, 2, 11, 1),
    Sketcher.Constraint("Coincident", 11, 2, 9, 2),
    Sketcher.Constraint("Coincident", 12, 2, 13, 2),
    Sketcher.Constraint("Coincident", 13, 1, 14, 1),
    Sketcher.Constraint("Coincident", 14, 2, 12, 1),
    Sketcher.Constraint("Coincident", 15, 1, 16, 1),
    Sketcher.Constraint("Coincident", 16, 2, 17, 1),
    Sketcher.Constraint("Coincident", 17, 2, 15, 2),
    Sketcher.Constraint("Coincident", 18, 2, 19, 2),
    Sketcher.Constraint("Coincident", 19, 1, 20, 1),
    Sketcher.Constraint("Coincident", 20, 2, 18, 1),
    Sketcher.Constraint("Coincident", 21, 1, 22, 1),
    Sketcher.Constraint("Coincident", 22, 2, 23, 1),
    Sketcher.Constraint("Coincident", 23, 2, 21, 2),
    Sketcher.Constraint("Coincident", 24, 2, 25, 2),
    Sketcher.Constraint("Coincident", 25, 1, 26, 1),
    Sketcher.Constraint("Coincident", 26, 2, 24, 1),
    Sketcher.Constraint("Coincident", 27, 1, 28, 1),
    Sketcher.Constraint("Coincident", 28, 2, 29, 1),
    Sketcher.Constraint("Coincident", 29, 2, 27, 2),
    Sketcher.Constraint("Coincident", 30, 2, 31, 2),
    Sketcher.Constraint("Coincident", 31, 1, 32, 1),
    Sketcher.Constraint("Coincident", 32, 2, 30, 1),
    Sketcher.Constraint("Coincident", 33, 1, 34, 1),
    Sketcher.Constraint("Coincident", 34, 2, 35, 1),
    Sketcher.Constraint("Coincident", 35, 2, 33, 2),
    Sketcher.Constraint("Coincident", 36, 2, 37, 2),
    Sketcher.Constraint("Coincident", 37, 1, 38, 1),
    Sketcher.Constraint("Coincident", 38, 2, 36, 1),
    Sketcher.Constraint("Coincident", 39, 1, 40, 1),
    Sketcher.Constraint("Coincident", 40, 2, 41, 1),
    Sketcher.Constraint("Coincident", 41, 2, 39, 2),
    Sketcher.Constraint("Coincident", 42, 2, 43, 2),
    Sketcher.Constraint("Coincident", 43, 1, 44, 1),
    Sketcher.Constraint("Coincident", 44, 2, 42, 1),
    Sketcher.Constraint("Coincident", 45, 1, 46, 1),
    Sketcher.Constraint("Coincident", 46, 2, 47, 1),
    Sketcher.Constraint("Coincident", 47, 2, 45, 2),
    Sketcher.Constraint("Coincident", 48, 2, 49, 2),
    Sketcher.Constraint("Coincident", 49, 1, 50, 1),
    Sketcher.Constraint("Coincident", 50, 2, 48, 1),
    Sketcher.Constraint("Coincident", 51, 1, 52, 1),
    Sketcher.Constraint("Coincident", 52, 2, 53, 1),
    Sketcher.Constraint("Coincident", 53, 2, 51, 2),
    Sketcher.Constraint("Coincident", 54, 2, 55, 2),
    Sketcher.Constraint("Coincident", 55, 1, 56, 1),
    Sketcher.Constraint("Coincident", 56, 2, 54, 1),
    Sketcher.Constraint("Coincident", 57, 1, 58, 1),
    Sketcher.Constraint("Coincident", 58, 2, 59, 1),
    Sketcher.Constraint("Coincident", 59, 2, 57, 2),
    Sketcher.Constraint("Coincident", 2, 3, -1, 1),
    Sketcher.Constraint("Coincident", 3, 3, -1, 1),
    Sketcher.Constraint("Coincident", 7, 3, -1, 1),
    Sketcher.Constraint("Coincident", 9, 3, -1, 1),
    Sketcher.Constraint("Coincident", 13, 3, -1, 1),
    Sketcher.Constraint("Coincident", 15, 3, -1, 1),
    Sketcher.Constraint("Coincident", 19, 3, -1, 1),
    Sketcher.Constraint("Coincident", 21, 3, -1, 1),
    Sketcher.Constraint("Coincident", 25, 3, -1, 1),
    Sketcher.Constraint("Coincident", 27, 3, -1, 1),
    Sketcher.Constraint("Coincident", 31, 3, -1, 1),
    Sketcher.Constraint("Coincident", 33, 3, -1, 1),
    Sketcher.Constraint("Coincident", 37, 3, -1, 1),
    Sketcher.Constraint("Coincident", 39, 3, -1, 1),
    Sketcher.Constraint("Coincident", 43, 3, -1, 1),
    Sketcher.Constraint("Coincident", 45, 3, -1, 1),
    Sketcher.Constraint("Coincident", 49, 3, -1, 1),
    Sketcher.Constraint("Coincident", 51, 3, -1, 1),
    Sketcher.Constraint("Coincident", 55, 3, -1, 1),
    Sketcher.Constraint("Coincident", 57, 3, -1, 1),
    Sketcher.Constraint("Equal", 2, 3),
    Sketcher.Constraint("Equal", 3, 7),
    Sketcher.Constraint("Equal", 7, 9),
    Sketcher.Constraint("Equal", 9, 13),
    Sketcher.Constraint("Equal", 13, 15),
    Sketcher.Constraint("Equal", 15, 19),
    Sketcher.Constraint("Equal", 19, 21),
    Sketcher.Constraint("Equal", 21, 25),
    Sketcher.Constraint("Equal", 25, 27),
    Sketcher.Constraint("Equal", 27, 31),
    Sketcher.Constraint("Equal", 31, 33),
    Sketcher.Constraint("Equal", 33, 37),
    Sketcher.Constraint("Equal", 37, 39),
    Sketcher.Constraint("Equal", 39, 43),
    Sketcher.Constraint("Equal", 43, 45),
    Sketcher.Constraint("Equal", 45, 49),
    Sketcher.Constraint("Equal", 49, 51),
    Sketcher.Constraint("Equal", 51, 55),
    Sketcher.Constraint("Equal", 55, 57),
    Sketcher.Constraint("Symmetric", 28, 2, 32, 2, -1, 1),
    Sketcher.Constraint("Symmetric", 26, 2, 34, 2, -1, 1),
    Sketcher.Constraint("Symmetric", 22, 2, 38, 2, -1, 1),
    Sketcher.Constraint("Symmetric", 20, 2, 40, 2, -1, 1),
    Sketcher.Constraint("Symmetric", 16, 2, 44, 2, -1, 1),
    Sketcher.Constraint("Symmetric", 14, 2, 46, 2, -1, 1),
    Sketcher.Constraint("Symmetric", 10, 2, 50, 2, -1, 1),
    Sketcher.Constraint("Symmetric", 8, 2, 52, 2, -1, 1),
    Sketcher.Constraint("Symmetric", 4, 2, 56, 2, -1, 1),
    Sketcher.Constraint("Symmetric", 0, 2, 58, 2, -1, 1),
    Sketcher.Constraint("Symmetric", 4, 2, 8, 2, -2),
    Sketcher.Constraint("Symmetric", 10, 2, 14, 2, -2),
    Sketcher.Constraint("Symmetric", 16, 2, 20, 2, -2),
    Sketcher.Constraint("Symmetric", 22, 2, 26, 2, -2),
    Sketcher.Constraint("PointOnObject", 0, 2, -2),
    Sketcher.Constraint("PointOnObject", 28, 2, -1),
    Sketcher.Constraint("Perpendicular", 14, 16),
    Sketcher.Constraint("Perpendicular", 12, 17),
    Sketcher.Constraint("Perpendicular", 11, 18),
    Sketcher.Constraint("Perpendicular", 10, 20),
    Sketcher.Constraint("Perpendicular", 8, 22),
    Sketcher.Constraint("Perpendicular", 6, 23),
    Sketcher.Constraint("Perpendicular", 5, 24),
    Sketcher.Constraint("Perpendicular", 4, 26),
    Sketcher.Constraint("Perpendicular", 0, 28),
    Sketcher.Constraint("Perpendicular", 1, 29),
    Sketcher.Constraint("Parallel", 29, 30),
    Sketcher.Constraint("Parallel", 28, 32),
    Sketcher.Constraint("Parallel", 26, 34),
    Sketcher.Constraint("Parallel", 24, 35),
    Sketcher.Constraint("Parallel", 23, 36),
    Sketcher.Constraint("Parallel", 22, 38),
    Sketcher.Constraint("Parallel", 20, 40),
    Sketcher.Constraint("Parallel", 18, 41),
    Sketcher.Constraint("Parallel", 17, 42),
    Sketcher.Constraint("Parallel", 16, 44),
    Sketcher.Constraint("Perpendicular", 44, 46),
    Sketcher.Constraint("Perpendicular", 42, 47),
    Sketcher.Constraint("Perpendicular", 41, 48),
    Sketcher.Constraint("Perpendicular", 40, 50),
    Sketcher.Constraint("Perpendicular", 38, 52),
    Sketcher.Constraint("Perpendicular", 36, 53),
    Sketcher.Constraint("Perpendicular", 35, 54),
    Sketcher.Constraint("Perpendicular", 34, 56),
    Sketcher.Constraint("Perpendicular", 32, 58),
    Sketcher.Constraint("Perpendicular", 30, 59),
    Sketcher.Constraint("Horizontal", 1, 2, 2, 1),
    Sketcher.Constraint("Horizontal", 3, 1, 6, 2),
    Sketcher.Constraint("Horizontal", 5, 2, 7, 1),
    Sketcher.Constraint("Horizontal", 9, 1, 12, 2),
    Sketcher.Constraint("Horizontal", 11, 2, 13, 1),
    Sketcher.Constraint("Equal", 1, 4),
    Sketcher.Constraint("Equal", 4, 5),
    Sketcher.Constraint("Equal", 8, 10),
    Sketcher.Constraint("Equal", 10, 11),
    Sketcher.Constraint("Equal", 14, 16),
    Sketcher.Constraint("Equal", 16, 17),
    Sketcher.Constraint("Equal", 20, 22),
    Sketcher.Constraint("Equal", 22, 23),
    Sketcher.Constraint("Equal", 26, 28),
    Sketcher.Constraint("Angle", 0, Q("120 deg")),
    Sketcher.Constraint("Angle", 4, Q("138 deg")),
    Sketcher.Constraint("Angle", 5, Q("-102 deg")),
    Sketcher.Constraint("Angle", 10, Q("156 deg")),
    Sketcher.Constraint("Angle", 11, Q("-84 deg")),
    Sketcher.Constraint("Radius", 2, 2.627004),
    Sketcher.Constraint("DistanceY", -1, 1, 11, 2, 1.946701),
])
pocket6 = body.newObject("PartDesign::Pocket", "Pocket005")
pocket6.Profile = sketch12
pocket6.Length = 3.3

# Sketch on XZ plane
sketch13 = body.newObject("Sketcher::SketchObject", "Sketch012")
sketch13.AttachmentSupport = (doc.getObject("XZ_Plane"), [""])
sketch13.MapMode = "FlatFace"
sketch13.addGeometry([
    Part.Circle(App.Vector(0, 0, 0), App.Vector(0, 0, 1), 2.627004),
    Part.Circle(App.Vector(0, 0, 0), App.Vector(0, 0, 1), 1.375),
], False)
sketch13.addConstraint([
    Sketcher.Constraint("Coincident", 0, 3, -1, 1),
    Sketcher.Constraint("Coincident", 1, 3, -1, 1),
    Sketcher.Constraint("Diameter", 1, 2.75),
    Sketcher.Constraint("Diameter", 0, 5.254007),
])
pocket7 = body.newObject("PartDesign::Pocket", "Pocket006")
pocket7.Profile = sketch13
pocket7.Length = 0.8

# Sketch on XZ plane
sketch14 = body.newObject("Sketcher::SketchObject", "Sketch013")
sketch14.AttachmentSupport = (doc.getObject("XZ_Plane"), [""])
sketch14.MapMode = "FlatFace"
sketch14.AttachmentOffset = App.Placement(App.Vector(0, 0, -3.4625), App.Rotation())
sketch14.addGeometry(Part.Circle(App.Vector(0, 0, 0), App.Vector(0, 0, 1), 1.375), False)
sketch14.addConstraint([
    Sketcher.Constraint("Coincident", 0, 3, -1, 1),
    Sketcher.Constraint("Diameter", 0, 2.75),
])
pocket8 = body.newObject("PartDesign::Pocket", "Pocket007")
pocket8.Profile = sketch14
pocket8.Length = 10

# Sketch on XZ plane
sketch15 = body.newObject("Sketcher::SketchObject", "Sketch014")
sketch15.AttachmentSupport = (doc.getObject("XZ_Plane"), [""])
sketch15.MapMode = "FlatFace"
sketch15.AttachmentOffset = App.Placement(App.Vector(0, 0, -7.5625), App.Rotation())
sketch15.addGeometry(Part.Circle(App.Vector(0, 0, 0), App.Vector(0, 0, 1), 2.75), False)
sketch15.addConstraint([
    Sketcher.Constraint("Coincident", 0, 3, -1, 1),
    Sketcher.Constraint("Diameter", 0, 5.5),
])
pocket9 = body.newObject("PartDesign::Pocket", "Pocket008")
pocket9.Profile = sketch15
pocket9.Length = 5.86
pocket9.Reversed = True

doc.recompute()
